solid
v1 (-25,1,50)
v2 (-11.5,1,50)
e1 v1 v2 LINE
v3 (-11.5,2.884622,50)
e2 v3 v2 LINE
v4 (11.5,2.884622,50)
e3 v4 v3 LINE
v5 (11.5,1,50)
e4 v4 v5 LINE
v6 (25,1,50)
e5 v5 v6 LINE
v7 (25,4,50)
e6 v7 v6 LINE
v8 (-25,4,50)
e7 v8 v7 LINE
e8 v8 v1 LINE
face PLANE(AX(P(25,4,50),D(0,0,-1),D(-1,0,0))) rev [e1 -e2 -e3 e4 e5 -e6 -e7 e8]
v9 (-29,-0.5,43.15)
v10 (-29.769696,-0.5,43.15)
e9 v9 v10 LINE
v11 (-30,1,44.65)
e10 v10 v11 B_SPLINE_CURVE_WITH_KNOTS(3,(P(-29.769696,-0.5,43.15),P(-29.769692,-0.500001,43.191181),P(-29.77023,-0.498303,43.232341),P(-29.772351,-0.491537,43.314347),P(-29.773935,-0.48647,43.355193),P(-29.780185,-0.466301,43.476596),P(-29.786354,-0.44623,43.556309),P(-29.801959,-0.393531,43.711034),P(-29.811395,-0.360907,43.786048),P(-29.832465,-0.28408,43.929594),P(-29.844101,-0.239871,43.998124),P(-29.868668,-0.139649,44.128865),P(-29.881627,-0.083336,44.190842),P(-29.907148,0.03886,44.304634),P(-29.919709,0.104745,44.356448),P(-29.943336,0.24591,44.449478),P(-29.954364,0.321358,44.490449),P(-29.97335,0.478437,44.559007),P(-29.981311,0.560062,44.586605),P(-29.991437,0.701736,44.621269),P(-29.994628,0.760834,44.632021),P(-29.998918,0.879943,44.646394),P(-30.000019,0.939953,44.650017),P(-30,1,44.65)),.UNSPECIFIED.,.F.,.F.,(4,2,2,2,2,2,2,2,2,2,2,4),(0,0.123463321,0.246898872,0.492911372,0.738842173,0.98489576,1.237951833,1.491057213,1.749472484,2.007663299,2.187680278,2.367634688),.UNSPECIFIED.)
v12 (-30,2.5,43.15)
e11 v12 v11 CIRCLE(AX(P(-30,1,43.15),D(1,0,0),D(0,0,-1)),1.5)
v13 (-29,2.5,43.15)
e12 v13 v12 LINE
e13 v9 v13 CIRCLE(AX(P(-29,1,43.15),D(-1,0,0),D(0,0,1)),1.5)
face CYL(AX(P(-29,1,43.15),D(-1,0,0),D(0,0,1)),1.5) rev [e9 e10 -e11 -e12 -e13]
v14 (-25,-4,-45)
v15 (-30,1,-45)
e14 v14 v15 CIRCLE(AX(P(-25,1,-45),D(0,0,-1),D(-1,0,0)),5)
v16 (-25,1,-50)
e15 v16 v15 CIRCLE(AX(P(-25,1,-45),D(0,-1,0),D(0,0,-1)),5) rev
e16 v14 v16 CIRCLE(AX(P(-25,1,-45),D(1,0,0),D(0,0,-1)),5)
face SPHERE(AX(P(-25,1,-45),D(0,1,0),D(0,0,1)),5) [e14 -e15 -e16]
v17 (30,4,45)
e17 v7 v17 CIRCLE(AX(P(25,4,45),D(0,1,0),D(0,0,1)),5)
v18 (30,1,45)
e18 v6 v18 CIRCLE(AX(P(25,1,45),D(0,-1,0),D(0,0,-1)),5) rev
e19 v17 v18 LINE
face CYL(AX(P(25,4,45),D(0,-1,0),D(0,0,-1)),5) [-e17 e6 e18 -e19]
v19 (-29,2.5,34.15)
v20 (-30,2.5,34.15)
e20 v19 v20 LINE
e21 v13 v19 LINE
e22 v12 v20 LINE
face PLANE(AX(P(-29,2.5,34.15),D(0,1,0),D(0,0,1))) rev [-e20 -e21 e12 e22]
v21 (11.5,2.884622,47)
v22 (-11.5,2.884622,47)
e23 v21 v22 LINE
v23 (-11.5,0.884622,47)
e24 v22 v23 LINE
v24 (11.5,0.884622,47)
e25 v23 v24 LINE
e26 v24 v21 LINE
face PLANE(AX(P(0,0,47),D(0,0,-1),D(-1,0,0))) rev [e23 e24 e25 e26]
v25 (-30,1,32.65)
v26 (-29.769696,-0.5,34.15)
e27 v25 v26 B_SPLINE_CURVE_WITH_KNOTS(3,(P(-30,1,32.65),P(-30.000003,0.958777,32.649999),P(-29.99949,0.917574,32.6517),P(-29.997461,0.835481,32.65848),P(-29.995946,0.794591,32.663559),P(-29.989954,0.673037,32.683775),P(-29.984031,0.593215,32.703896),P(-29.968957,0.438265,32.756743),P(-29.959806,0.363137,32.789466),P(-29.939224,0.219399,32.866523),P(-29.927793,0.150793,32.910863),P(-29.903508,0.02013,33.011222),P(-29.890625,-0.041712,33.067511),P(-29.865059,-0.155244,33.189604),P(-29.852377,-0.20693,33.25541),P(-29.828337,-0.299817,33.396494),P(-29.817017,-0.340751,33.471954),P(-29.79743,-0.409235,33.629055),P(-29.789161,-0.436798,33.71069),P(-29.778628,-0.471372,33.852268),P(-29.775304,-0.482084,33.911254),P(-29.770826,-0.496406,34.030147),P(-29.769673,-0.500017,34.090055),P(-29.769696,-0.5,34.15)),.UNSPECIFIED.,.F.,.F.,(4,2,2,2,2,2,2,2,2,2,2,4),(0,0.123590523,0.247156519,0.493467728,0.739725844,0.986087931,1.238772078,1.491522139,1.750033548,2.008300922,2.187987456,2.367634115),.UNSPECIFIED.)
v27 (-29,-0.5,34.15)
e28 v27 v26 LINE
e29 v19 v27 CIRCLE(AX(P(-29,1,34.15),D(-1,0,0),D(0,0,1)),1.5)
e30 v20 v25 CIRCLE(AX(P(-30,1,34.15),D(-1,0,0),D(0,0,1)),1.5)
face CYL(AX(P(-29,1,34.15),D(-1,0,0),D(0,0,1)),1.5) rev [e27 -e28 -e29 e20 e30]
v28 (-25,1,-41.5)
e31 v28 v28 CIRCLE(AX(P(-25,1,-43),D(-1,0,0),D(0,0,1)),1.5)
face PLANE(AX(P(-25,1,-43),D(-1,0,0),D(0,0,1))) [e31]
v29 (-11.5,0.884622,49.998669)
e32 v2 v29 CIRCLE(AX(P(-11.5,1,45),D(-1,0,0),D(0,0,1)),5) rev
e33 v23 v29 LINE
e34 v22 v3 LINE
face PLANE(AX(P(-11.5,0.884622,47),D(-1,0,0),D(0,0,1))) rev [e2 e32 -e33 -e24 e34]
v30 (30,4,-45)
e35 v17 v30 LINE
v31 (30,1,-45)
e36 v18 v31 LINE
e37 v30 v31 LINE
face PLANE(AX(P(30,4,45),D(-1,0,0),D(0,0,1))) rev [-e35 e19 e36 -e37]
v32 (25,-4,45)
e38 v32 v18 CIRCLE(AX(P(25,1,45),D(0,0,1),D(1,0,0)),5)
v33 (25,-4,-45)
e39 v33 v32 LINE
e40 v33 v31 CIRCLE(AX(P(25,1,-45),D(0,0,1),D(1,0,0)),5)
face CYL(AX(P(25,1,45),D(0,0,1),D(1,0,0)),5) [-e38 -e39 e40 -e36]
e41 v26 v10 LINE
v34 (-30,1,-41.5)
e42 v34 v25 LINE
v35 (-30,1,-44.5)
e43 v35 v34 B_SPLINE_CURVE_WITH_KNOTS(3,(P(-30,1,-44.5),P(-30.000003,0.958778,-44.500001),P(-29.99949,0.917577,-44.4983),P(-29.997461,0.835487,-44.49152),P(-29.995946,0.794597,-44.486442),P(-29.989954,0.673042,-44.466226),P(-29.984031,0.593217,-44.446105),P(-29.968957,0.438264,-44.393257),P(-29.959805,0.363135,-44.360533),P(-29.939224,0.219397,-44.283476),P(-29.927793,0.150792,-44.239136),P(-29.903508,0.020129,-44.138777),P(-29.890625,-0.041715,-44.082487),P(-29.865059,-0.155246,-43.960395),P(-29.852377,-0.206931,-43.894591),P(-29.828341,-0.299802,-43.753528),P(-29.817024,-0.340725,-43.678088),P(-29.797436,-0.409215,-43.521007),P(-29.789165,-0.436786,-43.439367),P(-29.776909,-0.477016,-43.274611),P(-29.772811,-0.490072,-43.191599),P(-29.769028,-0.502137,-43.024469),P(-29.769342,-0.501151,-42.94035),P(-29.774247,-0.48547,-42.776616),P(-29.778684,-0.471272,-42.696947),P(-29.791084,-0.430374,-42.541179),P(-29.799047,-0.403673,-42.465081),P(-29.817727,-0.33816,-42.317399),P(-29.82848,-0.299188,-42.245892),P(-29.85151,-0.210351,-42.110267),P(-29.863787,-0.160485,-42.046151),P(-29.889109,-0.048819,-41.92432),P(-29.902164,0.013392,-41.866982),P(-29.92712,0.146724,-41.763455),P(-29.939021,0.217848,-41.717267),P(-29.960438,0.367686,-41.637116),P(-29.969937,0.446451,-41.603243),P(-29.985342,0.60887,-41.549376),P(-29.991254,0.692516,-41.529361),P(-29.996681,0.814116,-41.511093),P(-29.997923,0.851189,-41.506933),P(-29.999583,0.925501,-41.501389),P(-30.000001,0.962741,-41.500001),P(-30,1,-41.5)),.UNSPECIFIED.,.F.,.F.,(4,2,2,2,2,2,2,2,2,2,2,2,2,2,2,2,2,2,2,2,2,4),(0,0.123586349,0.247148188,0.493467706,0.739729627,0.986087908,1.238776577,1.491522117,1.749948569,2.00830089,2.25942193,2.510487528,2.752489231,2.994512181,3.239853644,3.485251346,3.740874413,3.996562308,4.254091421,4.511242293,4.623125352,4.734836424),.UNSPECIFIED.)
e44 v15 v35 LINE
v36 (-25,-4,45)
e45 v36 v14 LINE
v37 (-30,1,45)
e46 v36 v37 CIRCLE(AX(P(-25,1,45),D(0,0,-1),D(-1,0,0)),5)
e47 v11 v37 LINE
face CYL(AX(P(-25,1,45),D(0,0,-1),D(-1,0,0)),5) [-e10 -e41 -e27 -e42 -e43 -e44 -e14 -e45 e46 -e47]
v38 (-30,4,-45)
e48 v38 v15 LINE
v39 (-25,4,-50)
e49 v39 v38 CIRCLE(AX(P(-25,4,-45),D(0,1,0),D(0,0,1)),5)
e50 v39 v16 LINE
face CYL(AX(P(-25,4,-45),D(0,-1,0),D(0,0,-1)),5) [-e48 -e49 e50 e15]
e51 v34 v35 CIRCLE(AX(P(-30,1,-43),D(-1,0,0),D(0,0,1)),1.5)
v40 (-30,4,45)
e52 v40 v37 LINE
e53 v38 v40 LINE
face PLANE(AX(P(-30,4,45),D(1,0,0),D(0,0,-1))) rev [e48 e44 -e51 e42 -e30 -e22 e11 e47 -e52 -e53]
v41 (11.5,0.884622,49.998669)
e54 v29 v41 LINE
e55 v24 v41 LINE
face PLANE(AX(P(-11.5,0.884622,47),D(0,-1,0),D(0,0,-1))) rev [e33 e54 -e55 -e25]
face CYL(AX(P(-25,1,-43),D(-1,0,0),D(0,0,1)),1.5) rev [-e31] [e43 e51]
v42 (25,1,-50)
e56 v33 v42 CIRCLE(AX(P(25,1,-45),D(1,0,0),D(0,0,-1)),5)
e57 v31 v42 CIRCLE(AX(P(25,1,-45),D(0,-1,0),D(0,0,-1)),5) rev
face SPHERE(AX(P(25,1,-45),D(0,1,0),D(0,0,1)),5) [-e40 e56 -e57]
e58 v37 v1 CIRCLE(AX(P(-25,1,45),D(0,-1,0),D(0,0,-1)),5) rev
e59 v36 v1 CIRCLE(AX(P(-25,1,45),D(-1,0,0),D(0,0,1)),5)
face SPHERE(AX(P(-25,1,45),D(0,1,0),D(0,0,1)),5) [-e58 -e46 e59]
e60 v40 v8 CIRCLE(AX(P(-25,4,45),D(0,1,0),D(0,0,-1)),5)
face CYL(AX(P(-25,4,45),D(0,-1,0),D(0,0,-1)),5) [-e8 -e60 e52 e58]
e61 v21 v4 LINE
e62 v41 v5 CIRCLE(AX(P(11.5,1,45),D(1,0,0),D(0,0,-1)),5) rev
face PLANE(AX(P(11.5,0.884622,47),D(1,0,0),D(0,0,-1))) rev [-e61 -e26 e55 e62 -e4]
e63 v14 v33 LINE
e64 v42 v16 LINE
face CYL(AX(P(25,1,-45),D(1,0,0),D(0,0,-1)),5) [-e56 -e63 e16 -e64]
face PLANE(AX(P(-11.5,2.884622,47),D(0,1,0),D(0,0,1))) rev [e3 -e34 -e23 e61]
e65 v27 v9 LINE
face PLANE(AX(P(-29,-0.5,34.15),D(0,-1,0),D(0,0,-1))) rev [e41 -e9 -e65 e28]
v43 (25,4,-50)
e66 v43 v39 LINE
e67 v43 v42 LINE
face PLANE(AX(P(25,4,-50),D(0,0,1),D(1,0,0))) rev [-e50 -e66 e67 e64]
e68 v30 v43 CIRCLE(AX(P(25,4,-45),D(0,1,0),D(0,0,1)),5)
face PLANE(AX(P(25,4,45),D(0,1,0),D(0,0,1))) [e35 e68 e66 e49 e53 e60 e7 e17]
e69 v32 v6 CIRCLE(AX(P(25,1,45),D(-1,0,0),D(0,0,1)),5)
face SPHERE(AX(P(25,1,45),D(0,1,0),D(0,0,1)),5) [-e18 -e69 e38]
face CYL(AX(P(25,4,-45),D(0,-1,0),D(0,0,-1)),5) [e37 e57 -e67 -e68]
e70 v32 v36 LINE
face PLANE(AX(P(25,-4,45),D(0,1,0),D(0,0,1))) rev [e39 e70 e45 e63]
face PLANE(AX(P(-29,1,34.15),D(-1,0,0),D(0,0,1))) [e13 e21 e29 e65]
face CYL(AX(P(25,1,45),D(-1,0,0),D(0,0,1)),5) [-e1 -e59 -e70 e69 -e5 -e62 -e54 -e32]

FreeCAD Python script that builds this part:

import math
import FreeCAD as App
import Part
import Sketcher


def edges_at(feature, points):
    """Names of the edges that pass closest to the given points."""
    edges = feature.Shape.Edges
    near = lambda p: min(range(len(edges)), key=lambda i: edges[i].distToShape(Part.Vertex(*p))[0])
    return sorted({f"Edge{near(p) + 1}" for p in points})


def add_polygon(sketch, points):
    """Adds a closed chain of lines whose ends are joined by coincident constraints."""
    first, n = sketch.GeometryCount, len(points)
    for a, b in zip(points, points[1:] + points[:1]):
        sketch.addGeometry(Part.LineSegment(App.Vector(*a, 0), App.Vector(*b, 0)), False)
    for i in range(n):
        sketch.addConstraint(Sketcher.Constraint("Coincident", first + i, 2, first + (i + 1) % n, 1))

doc = App.newDocument("Part")
params = doc.addObject("Spreadsheet::Sheet", "Params")
for row, (alias, value) in enumerate([
    ("sketch1_radius", "5 mm"),
    ("sketch1_width", "50 mm"),
    ("sketch1_height", "90 mm"),
    ("pad1_length", "8 mm"),
    ("fillet_radius", "5 mm"),
    ("sketch2_width", "23 mm"),
    ("sketch2_height", "2 mm"),
    ("pocket1_length", "3 mm"),
    ("sketch3_diameter", "3 mm"),
    ("pocket2_length", "5 mm"),
    ("sketch4_radius", "1.5 mm"),
    ("sketch4_height", "9 mm"),
    ("pocket3_length", "1 mm"),
], start=1):
    params.set(f"A{row}", alias)
    params.set(f"B{row}", "=" + value)
    params.setAlias(f"B{row}", alias)

body = doc.addObject("PartDesign::Body", "Body")

# Sketch on XZ plane
sketch1 = doc.addObject("Sketcher::SketchObject", "Sketch")
body.addObject(sketch1)
sketch1.AttachmentSupport = (doc.XZ_Plane, [""])
sketch1.MapMode = "FlatFace"
sketch1.addGeometry([
    Part.LineSegment(App.Vector(-25, 50, 0), App.Vector(25, 50, 0)),  # 0
    Part.ArcOfCircle(Part.Circle(App.Vector(25, 45, 0), App.Vector(0, 0, 1), 5), math.radians(0), math.radians(90)),  # 1
    Part.LineSegment(App.Vector(30, 45, 0), App.Vector(30, -45, 0)),  # 2
    Part.ArcOfCircle(Part.Circle(App.Vector(25, -45, 0), App.Vector(0, 0, 1), 5), math.radians(-90), math.radians(0)),  # 3
    Part.LineSegment(App.Vector(25, -50, 0), App.Vector(-25, -50, 0)),  # 4
    Part.ArcOfCircle(Part.Circle(App.Vector(-25, -45, 0), App.Vector(0, 0, 1), 5), math.radians(180), math.radians(270)),  # 5
    Part.LineSegment(App.Vector(-30, -45, 0), App.Vector(-30, 45, 0)),  # 6
    Part.ArcOfCircle(Part.Circle(App.Vector(-25, 45, 0), App.Vector(0, 0, 1), 5), math.radians(90), math.radians(180)),  # 7
], False)
sketch1.addConstraint([
    Sketcher.Constraint("Tangent", 0, 2, 1, 2),
    Sketcher.Constraint("Tangent", 1, 1, 2, 1),
    Sketcher.Constraint("Tangent", 2, 2, 3, 2),
    Sketcher.Constraint("Tangent", 3, 1, 4, 1),
    Sketcher.Constraint("Tangent", 4, 2, 5, 2),
    Sketcher.Constraint("Tangent", 5, 1, 6, 1),
    Sketcher.Constraint("Tangent", 6, 2, 7, 2),
    Sketcher.Constraint("Tangent", 7, 1, 0, 1),
    Sketcher.Constraint("Horizontal", 0),
    Sketcher.Constraint("Vertical", 2),
    Sketcher.Constraint("Horizontal", 4),
    Sketcher.Constraint("Vertical", 6),
    Sketcher.Constraint("Equal", 1, 3),
    Sketcher.Constraint("Equal", 3, 5),
    Sketcher.Constraint("Equal", 5, 7),
    Sketcher.Constraint("Symmetric", 1, 3, 5, 3, -1, 1),
    Sketcher.Constraint("Radius", 1, 5.0),
    Sketcher.Constraint("DistanceX", 0, 1, 0, 2, 50.0),
    Sketcher.Constraint("DistanceY", 2, 2, 2, 1, 90.0),
])
sketch1.setExpression("Constraints[16]", "Params.sketch1_radius")
sketch1.setExpression("Constraints[17]", "Params.sketch1_width")
sketch1.setExpression("Constraints[18]", "Params.sketch1_height")
pad1 = doc.addObject("PartDesign::Pad", "Pad")
body.addObject(pad1)
pad1.Profile = sketch1
pad1.setExpression("Length", "Params.pad1_length")
pad1.Midplane = True
doc.recompute()

fillet = doc.addObject("PartDesign::Fillet", "Fillet")
body.addObject(fillet)
fillet.Base = (pad1, edges_at(pad1, [
    (0, -4, -50),
    (28.536, -4, -48.536),
    (30, -4, 0),
    (28.536, -4, 48.536),
    (0, -4, 50),
    (-28.536, -4, 48.536),
    (-30, -4, 0),
    (-28.536, -4, -48.536),
]))
fillet.setExpression("Radius", "Params.fillet_radius")

# Sketch on XY plane
sketch2 = doc.addObject("Sketcher::SketchObject", "Sketch001")
body.addObject(sketch2)
sketch2.AttachmentSupport = (doc.XY_Plane, [""])
sketch2.MapMode = "FlatFace"
sketch2.AttachmentOffset = App.Placement(App.Vector(0, 0, 50), App.Rotation())
add_polygon(sketch2, [(-11.5, 2.9), (-11.5, 0.9), (11.5, 0.9), (11.5, 2.9)])  # lines 0-3
sketch2.addConstraint([
    Sketcher.Constraint("Vertical", 0),
    Sketcher.Constraint("Horizontal", 1),
    Sketcher.Constraint("Vertical", 2),
    Sketcher.Constraint("Horizontal", 3),
    Sketcher.Constraint("DistanceX", 1, 1, 1, 2, 23.0),
    Sketcher.Constraint("DistanceY", 0, 2, 0, 1, 2.0),
    Sketcher.Constraint("DistanceX", 0, 2, -1, 1, 11.5),
    Sketcher.Constraint("DistanceY", -1, 1, 0, 2, 0.884622),
])
sketch2.setExpression("Constraints[8]", "Params.sketch2_width")
sketch2.setExpression("Constraints[9]", "Params.sketch2_height")
pocket1 = doc.addObject("PartDesign::Pocket", "Pocket")
body.addObject(pocket1)
pocket1.Profile = sketch2
pocket1.setExpression("Length", "Params.pocket1_length")

# Sketch on YZ plane
sketch3 = doc.addObject("Sketcher::SketchObject", "Sketch002")
body.addObject(sketch3)
sketch3.AttachmentSupport = (doc.YZ_Plane, [""])
sketch3.MapMode = "FlatFace"
sketch3.AttachmentOffset = App.Placement(App.Vector(0, 0, -30), App.Rotation())
sketch3.addGeometry(Part.Circle(App.Vector(1, -43, 0), App.Vector(0, 0, 1), 1.5), False)
sketch3.addConstraint([
    Sketcher.Constraint("Diameter", 0, 3.0),
    Sketcher.Constraint("DistanceX", -1, 1, 0, 3, 1.0),
    Sketcher.Constraint("DistanceY", 0, 3, -1, 1, 43.0),
])
sketch3.setExpression("Constraints[0]", "Params.sketch3_diameter")
pocket2 = doc.addObject("PartDesign::Pocket", "Pocket001")
body.addObject(pocket2)
pocket2.Profile = sketch3
pocket2.setExpression("Length", "Params.pocket2_length")
pocket2.Reversed = True

# Sketch on YZ plane
sketch4 = doc.addObject("Sketcher::SketchObject", "Sketch003")
body.addObject(sketch4)
sketch4.AttachmentSupport = (doc.YZ_Plane, [""])
sketch4.MapMode = "FlatFace"
sketch4.AttachmentOffset = App.Placement(App.Vector(0, 0, -30), App.Rotation())
sketch4.addGeometry([
    Part.LineSegment(App.Vector(2.5, 43.1, 0), App.Vector(2.5, 34.1, 0)),
    Part.ArcOfCircle(Part.Circle(App.Vector(1, 34.1, 0), App.Vector(0, 0, 1), 1.5), math.radians(180), math.radians(360)),
    Part.LineSegment(App.Vector(-0.5, 34.1, 0), App.Vector(-0.5, 43.1, 0)),
    Part.ArcOfCircle(Part.Circle(App.Vector(1, 43.1, 0), App.Vector(0, 0, 1), 1.5), math.radians(0), math.radians(180)),
], False)
sketch4.addConstraint([
    Sketcher.Constraint("Tangent", 0, 2, 1, 2),
    Sketcher.Constraint("Tangent", 1, 1, 2, 1),
    Sketcher.Constraint("Tangent", 2, 2, 3, 2),
    Sketcher.Constraint("Tangent", 3, 1, 0, 1),
    Sketcher.Constraint("Vertical", 0),
    Sketcher.Constraint("Vertical", 2),
    Sketcher.Constraint("Radius", 1, 1.5),
    Sketcher.Constraint("DistanceY", 0, 2, 0, 1, 9.0),
    Sketcher.Constraint("DistanceX", -1, 1, 1, 3, 1.0),
    Sketcher.Constraint("DistanceY", -1, 1, 1, 3, 34.15),
])
sketch4.setExpression("Constraints[6]", "Params.sketch4_radius")
sketch4.setExpression("Constraints[7]", "Params.sketch4_height")
pocket3 = doc.addObject("PartDesign::Pocket", "Pocket002")
body.addObject(pocket3)
pocket3.Profile = sketch4
pocket3.setExpression("Length", "Params.pocket3_length")
pocket3.Reversed = True

doc.recompute()
